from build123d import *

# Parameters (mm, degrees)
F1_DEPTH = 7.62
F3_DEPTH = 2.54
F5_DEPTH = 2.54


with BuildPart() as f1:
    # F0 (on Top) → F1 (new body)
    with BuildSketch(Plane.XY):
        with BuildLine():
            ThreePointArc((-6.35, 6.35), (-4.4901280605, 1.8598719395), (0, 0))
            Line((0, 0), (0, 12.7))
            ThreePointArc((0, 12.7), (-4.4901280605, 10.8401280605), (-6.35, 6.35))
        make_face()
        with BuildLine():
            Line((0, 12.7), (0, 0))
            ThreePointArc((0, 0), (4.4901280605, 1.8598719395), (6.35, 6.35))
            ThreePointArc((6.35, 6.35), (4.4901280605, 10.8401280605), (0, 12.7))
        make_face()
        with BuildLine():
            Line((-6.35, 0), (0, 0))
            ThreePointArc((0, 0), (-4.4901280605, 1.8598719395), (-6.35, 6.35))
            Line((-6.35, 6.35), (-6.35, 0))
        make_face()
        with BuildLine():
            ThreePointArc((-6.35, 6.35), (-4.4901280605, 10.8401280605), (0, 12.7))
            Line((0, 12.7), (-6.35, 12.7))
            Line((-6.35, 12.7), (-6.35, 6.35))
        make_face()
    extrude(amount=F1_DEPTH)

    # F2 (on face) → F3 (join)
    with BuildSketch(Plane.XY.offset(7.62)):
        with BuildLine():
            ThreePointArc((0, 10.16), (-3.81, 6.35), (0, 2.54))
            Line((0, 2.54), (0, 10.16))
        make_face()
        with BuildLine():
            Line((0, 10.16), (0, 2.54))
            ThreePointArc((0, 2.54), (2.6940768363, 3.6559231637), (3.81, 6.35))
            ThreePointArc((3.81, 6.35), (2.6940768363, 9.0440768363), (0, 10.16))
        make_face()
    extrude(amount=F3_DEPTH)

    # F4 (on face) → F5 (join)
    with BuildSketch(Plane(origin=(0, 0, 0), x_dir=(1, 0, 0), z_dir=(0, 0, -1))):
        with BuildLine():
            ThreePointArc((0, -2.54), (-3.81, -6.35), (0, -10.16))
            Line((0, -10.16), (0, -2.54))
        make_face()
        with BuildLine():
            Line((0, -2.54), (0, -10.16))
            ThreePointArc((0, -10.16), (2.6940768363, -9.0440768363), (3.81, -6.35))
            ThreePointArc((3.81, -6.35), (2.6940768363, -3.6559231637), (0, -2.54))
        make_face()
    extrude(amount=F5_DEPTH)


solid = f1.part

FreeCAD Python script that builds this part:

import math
import FreeCAD as App
import Part
import Sketcher
from FreeCAD import Vector
Q = App.Units.Quantity

doc = App.newDocument("Part")
body = doc.addObject("PartDesign::Body", "Body")

sketch1 = body.newObject("Sketcher::SketchObject", "Sketch")
sketch1.AttachmentSupport = (doc.getObject("XY_Plane"), [""])
sketch1.MapMode = "FlatFace"
sketch1.addGeometry([
    Part.ArcOfCircle(Part.Circle(Vector(0, 6, 0), Vector(0, 0, 1), 6), math.radians(-90), math.radians(0)),
    Part.ArcOfCircle(Part.Circle(Vector(0, 6, 0), Vector(0, 0, 1), 6), math.radians(0), math.radians(90)),
    Part.LineSegment(Vector(0, 13, 0), Vector(-6, 13, 0)),
    Part.LineSegment(Vector(-6, 13, 0), Vector(-6, 0, 0)),
    Part.LineSegment(Vector(-6, 0, 0), Vector(0, 0, 0)),
], False)
sketch1.addConstraint([
    Sketcher.Constraint("Tangent", 0, 2, 1, 1),
    Sketcher.Constraint("Tangent", 1, 2, 2, 1),
    Sketcher.Constraint("Coincident", 2, 2, 3, 1),
    Sketcher.Constraint("Coincident", 3, 2, 4, 1),
    Sketcher.Constraint("Tangent", 4, 2, 0, 1),
    Sketcher.Constraint("Horizontal", 2),
    Sketcher.Constraint("Vertical", 3),
    Sketcher.Constraint("Horizontal", 4),
    Sketcher.Constraint("Coincident", 4, 2, -1, 1),
    Sketcher.Constraint("Equal", 0, 1),
    Sketcher.Constraint("Horizontal", 1, 3, 0, 2),
    Sketcher.Constraint("Radius", 0, Q("0.25 in")),
    Sketcher.Constraint("DistanceX", 2, 2, 2, 1, Q("0.25 in")),
])
pad1 = body.newObject("PartDesign::Pad", "Pad")
pad1.Profile = sketch1
pad1.Length = Q("0.3 in")

sketch2 = body.newObject("Sketcher::SketchObject", "Sketch001")
sketch2.AttachmentSupport = (doc.getObject("XY_Plane"), [""])
sketch2.MapMode = "FlatFace"
sketch2.AttachmentOffset = App.Placement(Vector(0, 0, 0.3 * 25.4), App.Rotation())
sketch2.addGeometry([
    Part.ArcOfCircle(Part.Circle(Vector(0, 6.3, 0), Vector(0, 0, 1), 3.8), math.radians(90), math.radians(270)),
    Part.ArcOfCircle(Part.Circle(Vector(0, 6.3, 0), Vector(0, 0, 1), 3.8), math.radians(-90), math.radians(0)),
    Part.ArcOfCircle(Part.Circle(Vector(0, 6.3, 0), Vector(0, 0, 1), 3.8), math.radians(0), math.radians(90)),
], False)
sketch2.addConstraint([
    Sketcher.Constraint("Tangent", 0, 2, 1, 1),
    Sketcher.Constraint("Tangent", 1, 2, 2, 1),
    Sketcher.Constraint("Tangent", 2, 2, 0, 1),
    Sketcher.Constraint("PointOnObject", 0, 3, -2),
    Sketcher.Constraint("PointOnObject", 0, 2, -2),
    Sketcher.Constraint("PointOnObject", 2, 2, -2),
    Sketcher.Constraint("Horizontal", 2, 3, 1, 2),
    Sketcher.Constraint("Radius", 0, Q("0.15 in")),
    Sketcher.Constraint("DistanceY", -1, 1, 0, 2, Q("0.1 in")),
])
pad2 = body.newObject("PartDesign::Pad", "Pad001")
pad2.Profile = sketch2
pad2.Length = Q("0.1 in")

sketch3 = body.newObject("Sketcher::SketchObject", "Sketch002")
sketch3.AttachmentSupport = (doc.getObject("XY_Plane"), [""])
sketch3.MapMode = "FlatFace"
sketch3.addGeometry([
    Part.ArcOfCircle(Part.Circle(Vector(0, 6.3, 0), Vector(0, 0, 1), 3.8), math.radians(90), math.radians(270)),
    Part.ArcOfCircle(Part.Circle(Vector(0, 6.3, 0), Vector(0, 0, 1), 3.8), math.radians(0), math.radians(90)),
    Part.ArcOfCircle(Part.Circle(Vector(0, 6.3, 0), Vector(0, 0, 1), 3.8), math.radians(-90), math.radians(0)),
], False)
sketch3.addConstraint([
    Sketcher.Constraint("Tangent", 0, 1, 1, 2),
    Sketcher.Constraint("Tangent", 1, 1, 2, 2),
    Sketcher.Constraint("Tangent", 2, 1, 0, 2),
    Sketcher.Constraint("PointOnObject", 0, 3, -2),
    Sketcher.Constraint("PointOnObject", 0, 1, -2),
    Sketcher.Constraint("PointOnObject", 2, 1, -2),
    Sketcher.Constraint("Horizontal", 2, 3, 1, 1),
    Sketcher.Constraint("Radius", 0, Q("0.15 in")),
    Sketcher.Constraint("DistanceY", -1, 1, 0, 1, Q("0.4 in")),
])
pad3 = body.newObject("PartDesign::Pad", "Pad002")
pad3.Profile = sketch3
pad3.Length = Q("0.1 in")
pad3.Reversed = True

doc.recompute()
